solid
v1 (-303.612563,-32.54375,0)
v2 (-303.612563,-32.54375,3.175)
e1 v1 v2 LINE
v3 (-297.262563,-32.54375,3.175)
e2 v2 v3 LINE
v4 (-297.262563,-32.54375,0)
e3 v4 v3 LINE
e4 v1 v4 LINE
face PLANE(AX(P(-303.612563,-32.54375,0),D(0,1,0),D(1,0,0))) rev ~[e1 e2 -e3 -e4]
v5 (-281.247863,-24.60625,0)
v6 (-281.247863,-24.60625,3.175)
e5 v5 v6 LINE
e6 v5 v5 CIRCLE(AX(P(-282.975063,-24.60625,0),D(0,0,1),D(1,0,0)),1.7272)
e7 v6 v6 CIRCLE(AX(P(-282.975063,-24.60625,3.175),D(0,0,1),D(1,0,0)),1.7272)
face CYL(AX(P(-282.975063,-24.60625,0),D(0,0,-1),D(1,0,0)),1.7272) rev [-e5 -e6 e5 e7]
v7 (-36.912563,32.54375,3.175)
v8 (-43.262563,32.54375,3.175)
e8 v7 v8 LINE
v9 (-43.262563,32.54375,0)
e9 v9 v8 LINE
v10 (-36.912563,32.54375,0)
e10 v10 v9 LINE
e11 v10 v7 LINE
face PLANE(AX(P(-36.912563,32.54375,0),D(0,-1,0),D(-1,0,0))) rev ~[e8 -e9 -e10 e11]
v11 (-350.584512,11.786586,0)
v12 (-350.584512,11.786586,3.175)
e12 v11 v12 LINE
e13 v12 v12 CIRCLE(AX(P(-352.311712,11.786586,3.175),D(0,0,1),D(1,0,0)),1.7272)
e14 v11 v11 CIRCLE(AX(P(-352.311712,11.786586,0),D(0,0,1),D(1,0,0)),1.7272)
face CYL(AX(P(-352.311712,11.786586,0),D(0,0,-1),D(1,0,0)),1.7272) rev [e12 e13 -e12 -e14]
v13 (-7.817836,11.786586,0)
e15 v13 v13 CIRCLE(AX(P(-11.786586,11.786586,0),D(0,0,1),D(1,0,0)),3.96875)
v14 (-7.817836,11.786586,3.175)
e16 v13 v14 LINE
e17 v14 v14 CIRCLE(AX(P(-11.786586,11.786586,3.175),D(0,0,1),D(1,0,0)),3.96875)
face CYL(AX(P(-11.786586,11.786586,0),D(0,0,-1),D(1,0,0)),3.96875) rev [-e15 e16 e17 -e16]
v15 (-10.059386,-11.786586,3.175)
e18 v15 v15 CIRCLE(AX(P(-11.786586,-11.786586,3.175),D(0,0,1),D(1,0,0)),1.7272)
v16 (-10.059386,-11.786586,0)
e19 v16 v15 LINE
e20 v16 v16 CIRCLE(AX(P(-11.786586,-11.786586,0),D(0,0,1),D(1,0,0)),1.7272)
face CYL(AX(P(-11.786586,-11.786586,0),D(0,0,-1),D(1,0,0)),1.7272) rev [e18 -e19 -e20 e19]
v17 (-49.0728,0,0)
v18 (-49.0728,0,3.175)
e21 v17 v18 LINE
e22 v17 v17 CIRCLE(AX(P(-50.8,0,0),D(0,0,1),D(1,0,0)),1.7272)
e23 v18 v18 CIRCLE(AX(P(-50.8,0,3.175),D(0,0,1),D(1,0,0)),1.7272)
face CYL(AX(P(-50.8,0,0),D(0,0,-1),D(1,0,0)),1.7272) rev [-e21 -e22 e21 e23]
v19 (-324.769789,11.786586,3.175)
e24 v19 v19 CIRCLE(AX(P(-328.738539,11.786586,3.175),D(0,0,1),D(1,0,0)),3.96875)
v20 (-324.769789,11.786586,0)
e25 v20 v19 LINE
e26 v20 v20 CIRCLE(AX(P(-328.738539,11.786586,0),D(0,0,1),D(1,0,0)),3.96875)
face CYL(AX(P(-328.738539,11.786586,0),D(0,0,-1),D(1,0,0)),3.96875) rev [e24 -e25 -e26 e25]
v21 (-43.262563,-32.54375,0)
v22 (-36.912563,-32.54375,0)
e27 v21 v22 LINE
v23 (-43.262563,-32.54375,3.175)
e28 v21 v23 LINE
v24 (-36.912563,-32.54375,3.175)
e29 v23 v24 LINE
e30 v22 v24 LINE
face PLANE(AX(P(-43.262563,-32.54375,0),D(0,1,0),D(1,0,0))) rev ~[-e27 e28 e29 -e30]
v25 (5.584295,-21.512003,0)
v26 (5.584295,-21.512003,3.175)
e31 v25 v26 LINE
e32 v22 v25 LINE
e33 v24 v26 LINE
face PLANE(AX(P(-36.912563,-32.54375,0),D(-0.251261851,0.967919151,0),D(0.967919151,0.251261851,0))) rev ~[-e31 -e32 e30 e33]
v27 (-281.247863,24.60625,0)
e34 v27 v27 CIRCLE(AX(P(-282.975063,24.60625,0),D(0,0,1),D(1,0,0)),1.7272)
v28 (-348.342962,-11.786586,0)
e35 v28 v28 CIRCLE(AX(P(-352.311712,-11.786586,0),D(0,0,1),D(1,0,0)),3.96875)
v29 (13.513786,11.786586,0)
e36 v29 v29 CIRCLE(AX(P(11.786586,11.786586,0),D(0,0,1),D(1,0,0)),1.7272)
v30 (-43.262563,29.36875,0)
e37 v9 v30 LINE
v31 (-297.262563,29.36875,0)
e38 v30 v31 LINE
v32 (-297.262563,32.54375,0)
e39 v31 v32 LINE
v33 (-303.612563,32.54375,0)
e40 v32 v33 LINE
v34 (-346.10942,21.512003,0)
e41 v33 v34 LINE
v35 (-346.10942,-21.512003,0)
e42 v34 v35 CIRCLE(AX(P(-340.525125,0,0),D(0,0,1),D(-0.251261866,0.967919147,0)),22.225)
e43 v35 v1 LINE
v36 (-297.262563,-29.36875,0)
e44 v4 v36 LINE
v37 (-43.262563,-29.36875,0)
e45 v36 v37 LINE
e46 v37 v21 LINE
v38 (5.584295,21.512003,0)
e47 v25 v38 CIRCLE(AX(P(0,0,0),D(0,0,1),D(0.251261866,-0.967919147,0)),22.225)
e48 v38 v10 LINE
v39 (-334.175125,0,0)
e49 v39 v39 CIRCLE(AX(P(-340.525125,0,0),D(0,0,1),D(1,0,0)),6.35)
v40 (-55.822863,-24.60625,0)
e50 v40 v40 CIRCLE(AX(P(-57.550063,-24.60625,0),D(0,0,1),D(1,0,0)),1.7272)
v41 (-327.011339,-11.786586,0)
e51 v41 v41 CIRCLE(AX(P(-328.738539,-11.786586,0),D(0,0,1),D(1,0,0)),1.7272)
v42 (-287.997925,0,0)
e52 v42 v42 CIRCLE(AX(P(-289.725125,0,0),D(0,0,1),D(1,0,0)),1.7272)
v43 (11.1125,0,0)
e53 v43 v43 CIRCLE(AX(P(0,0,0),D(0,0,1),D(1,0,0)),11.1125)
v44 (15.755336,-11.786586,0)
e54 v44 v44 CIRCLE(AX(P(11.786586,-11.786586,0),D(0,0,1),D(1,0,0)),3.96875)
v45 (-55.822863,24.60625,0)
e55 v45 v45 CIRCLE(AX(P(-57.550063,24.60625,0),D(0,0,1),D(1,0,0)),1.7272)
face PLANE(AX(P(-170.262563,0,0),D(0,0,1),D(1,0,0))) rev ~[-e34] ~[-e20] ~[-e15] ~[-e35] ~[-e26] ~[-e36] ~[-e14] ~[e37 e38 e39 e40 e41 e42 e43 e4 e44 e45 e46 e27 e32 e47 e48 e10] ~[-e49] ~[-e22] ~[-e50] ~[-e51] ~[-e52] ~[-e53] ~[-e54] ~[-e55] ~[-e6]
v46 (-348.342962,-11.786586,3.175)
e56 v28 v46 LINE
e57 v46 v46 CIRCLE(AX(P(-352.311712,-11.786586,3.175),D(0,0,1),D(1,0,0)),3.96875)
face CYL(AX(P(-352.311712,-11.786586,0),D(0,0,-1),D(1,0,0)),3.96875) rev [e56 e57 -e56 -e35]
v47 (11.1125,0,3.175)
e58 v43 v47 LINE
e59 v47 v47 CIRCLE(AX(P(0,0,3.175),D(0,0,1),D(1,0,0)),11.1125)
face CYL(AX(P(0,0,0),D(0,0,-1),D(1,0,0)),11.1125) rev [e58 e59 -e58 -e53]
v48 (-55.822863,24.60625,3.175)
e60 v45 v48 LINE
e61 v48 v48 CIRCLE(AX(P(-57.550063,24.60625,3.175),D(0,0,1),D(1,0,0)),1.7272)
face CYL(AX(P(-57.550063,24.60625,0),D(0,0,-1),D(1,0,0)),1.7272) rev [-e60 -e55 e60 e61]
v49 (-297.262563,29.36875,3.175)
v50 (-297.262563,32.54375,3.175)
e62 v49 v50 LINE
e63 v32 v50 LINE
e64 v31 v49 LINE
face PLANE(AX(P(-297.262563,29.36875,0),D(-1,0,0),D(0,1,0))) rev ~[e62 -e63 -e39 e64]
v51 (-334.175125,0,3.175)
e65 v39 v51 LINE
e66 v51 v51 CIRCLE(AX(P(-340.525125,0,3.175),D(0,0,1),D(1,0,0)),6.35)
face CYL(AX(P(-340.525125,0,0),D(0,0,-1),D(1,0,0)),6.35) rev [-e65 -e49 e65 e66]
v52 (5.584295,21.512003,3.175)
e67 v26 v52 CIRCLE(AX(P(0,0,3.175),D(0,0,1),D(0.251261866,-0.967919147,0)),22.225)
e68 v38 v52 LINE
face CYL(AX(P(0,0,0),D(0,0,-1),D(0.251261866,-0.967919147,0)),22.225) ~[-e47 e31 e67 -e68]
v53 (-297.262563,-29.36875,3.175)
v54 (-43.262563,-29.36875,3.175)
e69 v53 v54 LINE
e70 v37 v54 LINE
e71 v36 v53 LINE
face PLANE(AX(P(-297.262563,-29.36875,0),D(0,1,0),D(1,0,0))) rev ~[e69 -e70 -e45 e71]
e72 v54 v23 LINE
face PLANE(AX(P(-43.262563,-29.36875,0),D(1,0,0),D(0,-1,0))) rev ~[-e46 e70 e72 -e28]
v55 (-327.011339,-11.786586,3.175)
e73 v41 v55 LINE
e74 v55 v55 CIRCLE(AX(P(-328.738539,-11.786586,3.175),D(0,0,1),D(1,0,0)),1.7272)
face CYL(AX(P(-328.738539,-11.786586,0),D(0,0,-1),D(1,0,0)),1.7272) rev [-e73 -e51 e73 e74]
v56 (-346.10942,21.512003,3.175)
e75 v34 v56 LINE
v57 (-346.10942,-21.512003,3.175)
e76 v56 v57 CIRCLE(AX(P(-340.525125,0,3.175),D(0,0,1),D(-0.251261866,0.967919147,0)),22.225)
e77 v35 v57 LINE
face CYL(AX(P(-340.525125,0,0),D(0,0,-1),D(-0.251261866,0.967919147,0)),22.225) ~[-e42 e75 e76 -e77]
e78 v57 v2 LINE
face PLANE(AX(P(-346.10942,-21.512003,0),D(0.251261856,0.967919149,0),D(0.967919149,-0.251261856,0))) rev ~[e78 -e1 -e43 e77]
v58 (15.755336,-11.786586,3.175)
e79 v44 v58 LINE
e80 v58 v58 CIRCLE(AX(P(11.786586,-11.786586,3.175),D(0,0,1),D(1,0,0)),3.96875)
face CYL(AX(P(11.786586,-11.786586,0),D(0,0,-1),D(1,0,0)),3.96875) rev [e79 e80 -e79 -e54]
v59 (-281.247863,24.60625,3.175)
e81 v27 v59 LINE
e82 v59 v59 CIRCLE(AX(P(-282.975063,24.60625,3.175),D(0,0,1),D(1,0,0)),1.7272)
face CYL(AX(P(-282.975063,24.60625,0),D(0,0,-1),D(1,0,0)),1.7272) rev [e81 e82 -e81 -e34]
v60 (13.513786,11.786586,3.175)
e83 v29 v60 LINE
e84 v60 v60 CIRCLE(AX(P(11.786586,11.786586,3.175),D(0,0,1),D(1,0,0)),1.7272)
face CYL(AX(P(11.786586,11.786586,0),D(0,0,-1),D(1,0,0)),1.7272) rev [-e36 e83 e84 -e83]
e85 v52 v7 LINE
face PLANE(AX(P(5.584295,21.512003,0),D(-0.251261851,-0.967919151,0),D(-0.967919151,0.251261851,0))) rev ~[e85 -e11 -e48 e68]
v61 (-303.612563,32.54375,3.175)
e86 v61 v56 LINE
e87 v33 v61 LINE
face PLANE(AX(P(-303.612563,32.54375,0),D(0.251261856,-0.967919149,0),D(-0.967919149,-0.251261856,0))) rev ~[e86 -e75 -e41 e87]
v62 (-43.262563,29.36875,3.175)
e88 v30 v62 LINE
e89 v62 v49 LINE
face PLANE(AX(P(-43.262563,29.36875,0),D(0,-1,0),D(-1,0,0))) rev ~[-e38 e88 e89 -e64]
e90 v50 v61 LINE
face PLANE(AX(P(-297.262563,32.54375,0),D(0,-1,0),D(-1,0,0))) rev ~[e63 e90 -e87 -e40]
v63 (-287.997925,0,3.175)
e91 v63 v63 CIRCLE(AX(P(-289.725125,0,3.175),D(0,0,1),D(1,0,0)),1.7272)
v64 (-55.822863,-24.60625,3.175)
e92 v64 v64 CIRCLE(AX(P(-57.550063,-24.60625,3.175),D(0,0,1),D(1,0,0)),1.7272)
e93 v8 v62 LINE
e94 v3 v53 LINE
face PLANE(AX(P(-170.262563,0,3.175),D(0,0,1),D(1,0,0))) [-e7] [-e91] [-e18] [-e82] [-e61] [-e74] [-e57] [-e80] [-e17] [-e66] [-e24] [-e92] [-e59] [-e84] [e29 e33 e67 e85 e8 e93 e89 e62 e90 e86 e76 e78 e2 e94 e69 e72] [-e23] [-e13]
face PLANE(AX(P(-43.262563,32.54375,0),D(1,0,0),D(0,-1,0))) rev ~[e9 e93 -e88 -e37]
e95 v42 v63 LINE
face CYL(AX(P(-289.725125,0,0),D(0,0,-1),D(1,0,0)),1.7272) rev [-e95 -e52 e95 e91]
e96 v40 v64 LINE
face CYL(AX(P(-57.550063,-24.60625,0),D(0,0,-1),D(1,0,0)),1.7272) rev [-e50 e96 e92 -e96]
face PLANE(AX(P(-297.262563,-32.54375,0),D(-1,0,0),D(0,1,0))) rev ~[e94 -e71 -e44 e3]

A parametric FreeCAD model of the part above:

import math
import FreeCAD as App
import Part
import Sketcher
from FreeCAD import Vector
Q = App.Units.Quantity

doc = App.newDocument("Part")
body = doc.addObject("PartDesign::Body", "Body")

# Sketch on XY plane
sketch1 = body.newObject("Sketcher::SketchObject", "Sketch")
sketch1.AttachmentSupport = (doc.getObject("XY_Plane"), [""])
sketch1.MapMode = "FlatFace"
sketch1.addGeometry(Part.LineSegment(Vector(-303.6, 32.5, 0), Vector(-346.1, 21.5, 0)), False)
sketch1.addGeometry(Part.ArcOfCircle(Part.Circle(Vector(-340.5, 0, 0), Vector(0, 0, 1), 22.2), math.radians(105), math.radians(255)), False)
sketch1.addGeometry(Part.LineSegment(Vector(-346.1, -21.5, 0), Vector(-303.6, -32.5, 0)), False)
sketch1.addGeometry(Part.LineSegment(Vector(-303.6, -32.5, 0), Vector(-297.3, -32.5, 0)), False)
sketch1.addGeometry(Part.LineSegment(Vector(-297.3, -32.5, 0), Vector(-297.3, -29.4, 0)), False)
sketch1.addGeometry(Part.LineSegment(Vector(-297.3, -29.4, 0), Vector(-43.3, -29.4, 0)), False)
sketch1.addGeometry(Part.LineSegment(Vector(-43.3, -29.4, 0), Vector(-43.3, -32.5, 0)), False)
sketch1.addGeometry(Part.LineSegment(Vector(-43.3, -32.5, 0), Vector(-36.9, -32.5, 0)), False)
sketch1.addGeometry(Part.LineSegment(Vector(-36.9, -32.5, 0), Vector(5.6, -21.5, 0)), False)
sketch1.addGeometry(Part.ArcOfCircle(Part.Circle(Vector(0, 0, 0), Vector(0, 0, 1), 22.2), math.radians(-75), math.radians(75)), False)
sketch1.addGeometry(Part.LineSegment(Vector(5.6, 21.5, 0), Vector(-36.9, 32.5, 0)), False)
sketch1.addGeometry(Part.LineSegment(Vector(-36.9, 32.5, 0), Vector(-43.3, 32.5, 0)), False)
sketch1.addGeometry(Part.LineSegment(Vector(-43.3, 32.5, 0), Vector(-43.3, 29.4, 0)), False)
sketch1.addGeometry(Part.LineSegment(Vector(-43.3, 29.4, 0), Vector(-297.3, 29.4, 0)), False)
sketch1.addGeometry(Part.LineSegment(Vector(-297.3, 29.4, 0), Vector(-297.3, 32.5, 0)), False)
sketch1.addGeometry(Part.LineSegment(Vector(-297.3, 32.5, 0), Vector(-303.6, 32.5, 0)), False)
sketch1.addGeometry(Part.Circle(Vector(-283, -24.6, 0), Vector(0, 0, 1), 1.7), False)
sketch1.addGeometry(Part.Circle(Vector(-352.3, -11.8, 0), Vector(0, 0, 1), 4), False)
sketch1.addGeometry(Part.Circle(Vector(-328.7, -11.8, 0), Vector(0, 0, 1), 1.7), False)
sketch1.addGeometry(Part.Circle(Vector(-57.6, -24.6, 0), Vector(0, 0, 1), 1.7), False)
sketch1.addGeometry(Part.Circle(Vector(-11.8, -11.8, 0), Vector(0, 0, 1), 1.7), False)
sketch1.addGeometry(Part.Circle(Vector(11.8, -11.8, 0), Vector(0, 0, 1), 4), False)
sketch1.addGeometry(Part.Circle(Vector(-340.5, 0, 0), Vector(0, 0, 1), 6.3), False)
sketch1.addGeometry(Part.Circle(Vector(-289.7, 0, 0), Vector(0, 0, 1), 1.7), False)
sketch1.addGeometry(Part.Circle(Vector(-352.3, 11.8, 0), Vector(0, 0, 1), 1.7), False)
sketch1.addGeometry(Part.Circle(Vector(-328.7, 11.8, 0), Vector(0, 0, 1), 4), False)
sketch1.addGeometry(Part.Circle(Vector(-283, 24.6, 0), Vector(0, 0, 1), 1.7), False)
sketch1.addGeometry(Part.Circle(Vector(-50.8, 0, 0), Vector(0, 0, 1), 1.7), False)
sketch1.addGeometry(Part.Circle(Vector(0, 0, 0), Vector(0, 0, 1), 11.1), False)
sketch1.addGeometry(Part.Circle(Vector(-11.8, 11.8, 0), Vector(0, 0, 1), 4), False)
sketch1.addGeometry(Part.Circle(Vector(11.8, 11.8, 0), Vector(0, 0, 1), 1.7), False)
sketch1.addGeometry(Part.Circle(Vector(-57.6, 24.6, 0), Vector(0, 0, 1), 1.7), False)
sketch1.addConstraint(Sketcher.Constraint("Tangent", 0, 2, 1, 1))
sketch1.addConstraint(Sketcher.Constraint("Tangent", 1, 2, 2, 1))
sketch1.addConstraint(Sketcher.Constraint("Coincident", 2, 2, 3, 1))
sketch1.addConstraint(Sketcher.Constraint("Coincident", 3, 2, 4, 1))
sketch1.addConstraint(Sketcher.Constraint("Coincident", 4, 2, 5, 1))
sketch1.addConstraint(Sketcher.Constraint("Coincident", 5, 2, 6, 1))
sketch1.addConstraint(Sketcher.Constraint("Coincident", 6, 2, 7, 1))
sketch1.addConstraint(Sketcher.Constraint("Coincident", 7, 2, 8, 1))
sketch1.addConstraint(Sketcher.Constraint("Tangent", 8, 2, 9, 1))
sketch1.addConstraint(Sketcher.Constraint("Tangent", 9, 2, 10, 1))
sketch1.addConstraint(Sketcher.Constraint("Coincident", 10, 2, 11, 1))
sketch1.addConstraint(Sketcher.Constraint("Coincident", 11, 2, 12, 1))
sketch1.addConstraint(Sketcher.Constraint("Coincident", 12, 2, 13, 1))
sketch1.addConstraint(Sketcher.Constraint("Coincident", 13, 2, 14, 1))
sketch1.addConstraint(Sketcher.Constraint("Coincident", 14, 2, 15, 1))
sketch1.addConstraint(Sketcher.Constraint("Coincident", 15, 2, 0, 1))
sketch1.addConstraint(Sketcher.Constraint("Horizontal", 3))
sketch1.addConstraint(Sketcher.Constraint("Vertical", 4))
sketch1.addConstraint(Sketcher.Constraint("Horizontal", 5))
sketch1.addConstraint(Sketcher.Constraint("Vertical", 6))
sketch1.addConstraint(Sketcher.Constraint("Horizontal", 7))
sketch1.addConstraint(Sketcher.Constraint("Horizontal", 11))
sketch1.addConstraint(Sketcher.Constraint("Vertical", 12))
sketch1.addConstraint(Sketcher.Constraint("Horizontal", 13))
sketch1.addConstraint(Sketcher.Constraint("Vertical", 14))
sketch1.addConstraint(Sketcher.Constraint("Horizontal", 15))
sketch1.addConstraint(Sketcher.Constraint("Coincident", 9, 3, -1, 1))
sketch1.addConstraint(Sketcher.Constraint("Coincident", 28, 3, -1, 1))
sketch1.addConstraint(Sketcher.Constraint("Coincident", 22, 3, 1, 3))
sketch1.addConstraint(Sketcher.Constraint("Equal", 1, 9))
sketch1.addConstraint(Sketcher.Constraint("Equal", 16, 18))
sketch1.addConstraint(Sketcher.Constraint("Equal", 18, 19))
sketch1.addConstraint(Sketcher.Constraint("Equal", 19, 20))
sketch1.addConstraint(Sketcher.Constraint("Equal", 17, 21))
sketch1.addConstraint(Sketcher.Constraint("Equal", 20, 23))
sketch1.addConstraint(Sketcher.Constraint("Equal", 23, 24))
sketch1.addConstraint(Sketcher.Constraint("Equal", 21, 25))
sketch1.addConstraint(Sketcher.Constraint("Equal", 24, 26))
sketch1.addConstraint(Sketcher.Constraint("Equal", 26, 27))
sketch1.addConstraint(Sketcher.Constraint("Equal", 25, 29))
sketch1.addConstraint(Sketcher.Constraint("Equal", 27, 30))
sketch1.addConstraint(Sketcher.Constraint("Equal", 30, 31))
sketch1.addConstraint(Sketcher.Constraint("Symmetric", 21, 3, 29, 3, -1, 1))
sketch1.addConstraint(Sketcher.Constraint("Symmetric", 20, 3, 30, 3, -1, 1))
sketch1.addConstraint(Sketcher.Constraint("Symmetric", 20, 3, 21, 3, -2))
sketch1.addConstraint(Sketcher.Constraint("Symmetric", 17, 3, 24, 3, -1))
sketch1.addConstraint(Sketcher.Constraint("Symmetric", 18, 3, 25, 3, -1))
sketch1.addConstraint(Sketcher.Constraint("Symmetric", 16, 3, 26, 3, -1))
sketch1.addConstraint(Sketcher.Constraint("Symmetric", 19, 3, 31, 3, -1))
sketch1.addConstraint(Sketcher.Constraint("Symmetric", 0, 2, 1, 2, -1))
sketch1.addConstraint(Sketcher.Constraint("Symmetric", 7, 2, 10, 2, -1))
sketch1.addConstraint(Sketcher.Constraint("Symmetric", 5, 2, 12, 2, -1))
sketch1.addConstraint(Sketcher.Constraint("Symmetric", 3, 2, 14, 2, -1))
sketch1.addConstraint(Sketcher.Constraint("PointOnObject", 23, 3, -1))
sketch1.addConstraint(Sketcher.Constraint("PointOnObject", 27, 3, -1))
sketch1.addConstraint(Sketcher.Constraint("Parallel", 0, 8))
sketch1.addConstraint(Sketcher.Constraint("Horizontal", 17, 3, 18, 3))
sketch1.addConstraint(Sketcher.Constraint("Horizontal", 16, 3, 19, 3))
sketch1.addConstraint(Sketcher.Constraint("Horizontal", 18, 3, 20, 3))
sketch1.addConstraint(Sketcher.Constraint("Horizontal", 3, 2, 6, 2))
sketch1.addConstraint(Sketcher.Constraint("Equal", 3, 7))
sketch1.addConstraint(Sketcher.Constraint("Diameter", 22, Q("0.5 in")))
sketch1.addConstraint(Sketcher.Constraint("DistanceX", 5, 1, 5, 2, Q("10 in")))
sketch1.addConstraint(Sketcher.Constraint("Diameter", 16, Q("0.136 in")))
sketch1.addConstraint(Sketcher.Constraint("Diameter", 17, Q("0.3125 in")))
sketch1.addConstraint(Sketcher.Constraint("Diameter", 28, Q("0.875 in")))
sketch1.addConstraint(Sketcher.Constraint("DistanceX", 27, 3, -1, 1, Q("2 in")))
sketch1.addConstraint(Sketcher.Constraint("Radius", 1, Q("0.875 in")))
sketch1.addConstraint(Sketcher.Constraint("DistanceX", 22, 3, 23, 3, Q("2 in")))
sketch1.addConstraint(Sketcher.Constraint("DistanceX", 3, 1, 3, 2, Q("0.25 in")))
sketch1.addConstraint(Sketcher.Constraint("DistanceY", 4, 1, 4, 2, Q("0.125 in")))
sketch1.addConstraint(Sketcher.Constraint("DistanceY", 16, 3, -1, 1, Q("0.96875 in")))
sketch1.addConstraint(Sketcher.Constraint("DistanceY", 2, 2, -1, 1, Q("1.28125 in")))
sketch1.addConstraint(Sketcher.Constraint("DistanceX", 16, 3, 19, 3, Q("8.875 in")))
sketch1.addConstraint(Sketcher.Constraint("DistanceX", 2, 2, 16, 3, Q("0.8125 in")))
sketch1.addConstraint(Sketcher.Constraint("Distance", 0, Q("43.905379 mm")))
sketch1.addConstraint(Sketcher.Constraint("DistanceX", 17, 3, -1, 1, Q("352.311712 mm")))
sketch1.addConstraint(Sketcher.Constraint("DistanceX", 18, 3, -1, 1, Q("328.738539 mm")))
sketch1.addConstraint(Sketcher.Constraint("DistanceX", 1, 3, 20, 3, Q("328.738539 mm")))
sketch1.addConstraint(Sketcher.Constraint("DistanceY", 17, 3, 24, 3, Q("23.573172 mm")))
pad1 = body.newObject("PartDesign::Pad", "Pad")
pad1.Profile = sketch1
pad1.Length = Q("0.125 in")

doc.recompute()
